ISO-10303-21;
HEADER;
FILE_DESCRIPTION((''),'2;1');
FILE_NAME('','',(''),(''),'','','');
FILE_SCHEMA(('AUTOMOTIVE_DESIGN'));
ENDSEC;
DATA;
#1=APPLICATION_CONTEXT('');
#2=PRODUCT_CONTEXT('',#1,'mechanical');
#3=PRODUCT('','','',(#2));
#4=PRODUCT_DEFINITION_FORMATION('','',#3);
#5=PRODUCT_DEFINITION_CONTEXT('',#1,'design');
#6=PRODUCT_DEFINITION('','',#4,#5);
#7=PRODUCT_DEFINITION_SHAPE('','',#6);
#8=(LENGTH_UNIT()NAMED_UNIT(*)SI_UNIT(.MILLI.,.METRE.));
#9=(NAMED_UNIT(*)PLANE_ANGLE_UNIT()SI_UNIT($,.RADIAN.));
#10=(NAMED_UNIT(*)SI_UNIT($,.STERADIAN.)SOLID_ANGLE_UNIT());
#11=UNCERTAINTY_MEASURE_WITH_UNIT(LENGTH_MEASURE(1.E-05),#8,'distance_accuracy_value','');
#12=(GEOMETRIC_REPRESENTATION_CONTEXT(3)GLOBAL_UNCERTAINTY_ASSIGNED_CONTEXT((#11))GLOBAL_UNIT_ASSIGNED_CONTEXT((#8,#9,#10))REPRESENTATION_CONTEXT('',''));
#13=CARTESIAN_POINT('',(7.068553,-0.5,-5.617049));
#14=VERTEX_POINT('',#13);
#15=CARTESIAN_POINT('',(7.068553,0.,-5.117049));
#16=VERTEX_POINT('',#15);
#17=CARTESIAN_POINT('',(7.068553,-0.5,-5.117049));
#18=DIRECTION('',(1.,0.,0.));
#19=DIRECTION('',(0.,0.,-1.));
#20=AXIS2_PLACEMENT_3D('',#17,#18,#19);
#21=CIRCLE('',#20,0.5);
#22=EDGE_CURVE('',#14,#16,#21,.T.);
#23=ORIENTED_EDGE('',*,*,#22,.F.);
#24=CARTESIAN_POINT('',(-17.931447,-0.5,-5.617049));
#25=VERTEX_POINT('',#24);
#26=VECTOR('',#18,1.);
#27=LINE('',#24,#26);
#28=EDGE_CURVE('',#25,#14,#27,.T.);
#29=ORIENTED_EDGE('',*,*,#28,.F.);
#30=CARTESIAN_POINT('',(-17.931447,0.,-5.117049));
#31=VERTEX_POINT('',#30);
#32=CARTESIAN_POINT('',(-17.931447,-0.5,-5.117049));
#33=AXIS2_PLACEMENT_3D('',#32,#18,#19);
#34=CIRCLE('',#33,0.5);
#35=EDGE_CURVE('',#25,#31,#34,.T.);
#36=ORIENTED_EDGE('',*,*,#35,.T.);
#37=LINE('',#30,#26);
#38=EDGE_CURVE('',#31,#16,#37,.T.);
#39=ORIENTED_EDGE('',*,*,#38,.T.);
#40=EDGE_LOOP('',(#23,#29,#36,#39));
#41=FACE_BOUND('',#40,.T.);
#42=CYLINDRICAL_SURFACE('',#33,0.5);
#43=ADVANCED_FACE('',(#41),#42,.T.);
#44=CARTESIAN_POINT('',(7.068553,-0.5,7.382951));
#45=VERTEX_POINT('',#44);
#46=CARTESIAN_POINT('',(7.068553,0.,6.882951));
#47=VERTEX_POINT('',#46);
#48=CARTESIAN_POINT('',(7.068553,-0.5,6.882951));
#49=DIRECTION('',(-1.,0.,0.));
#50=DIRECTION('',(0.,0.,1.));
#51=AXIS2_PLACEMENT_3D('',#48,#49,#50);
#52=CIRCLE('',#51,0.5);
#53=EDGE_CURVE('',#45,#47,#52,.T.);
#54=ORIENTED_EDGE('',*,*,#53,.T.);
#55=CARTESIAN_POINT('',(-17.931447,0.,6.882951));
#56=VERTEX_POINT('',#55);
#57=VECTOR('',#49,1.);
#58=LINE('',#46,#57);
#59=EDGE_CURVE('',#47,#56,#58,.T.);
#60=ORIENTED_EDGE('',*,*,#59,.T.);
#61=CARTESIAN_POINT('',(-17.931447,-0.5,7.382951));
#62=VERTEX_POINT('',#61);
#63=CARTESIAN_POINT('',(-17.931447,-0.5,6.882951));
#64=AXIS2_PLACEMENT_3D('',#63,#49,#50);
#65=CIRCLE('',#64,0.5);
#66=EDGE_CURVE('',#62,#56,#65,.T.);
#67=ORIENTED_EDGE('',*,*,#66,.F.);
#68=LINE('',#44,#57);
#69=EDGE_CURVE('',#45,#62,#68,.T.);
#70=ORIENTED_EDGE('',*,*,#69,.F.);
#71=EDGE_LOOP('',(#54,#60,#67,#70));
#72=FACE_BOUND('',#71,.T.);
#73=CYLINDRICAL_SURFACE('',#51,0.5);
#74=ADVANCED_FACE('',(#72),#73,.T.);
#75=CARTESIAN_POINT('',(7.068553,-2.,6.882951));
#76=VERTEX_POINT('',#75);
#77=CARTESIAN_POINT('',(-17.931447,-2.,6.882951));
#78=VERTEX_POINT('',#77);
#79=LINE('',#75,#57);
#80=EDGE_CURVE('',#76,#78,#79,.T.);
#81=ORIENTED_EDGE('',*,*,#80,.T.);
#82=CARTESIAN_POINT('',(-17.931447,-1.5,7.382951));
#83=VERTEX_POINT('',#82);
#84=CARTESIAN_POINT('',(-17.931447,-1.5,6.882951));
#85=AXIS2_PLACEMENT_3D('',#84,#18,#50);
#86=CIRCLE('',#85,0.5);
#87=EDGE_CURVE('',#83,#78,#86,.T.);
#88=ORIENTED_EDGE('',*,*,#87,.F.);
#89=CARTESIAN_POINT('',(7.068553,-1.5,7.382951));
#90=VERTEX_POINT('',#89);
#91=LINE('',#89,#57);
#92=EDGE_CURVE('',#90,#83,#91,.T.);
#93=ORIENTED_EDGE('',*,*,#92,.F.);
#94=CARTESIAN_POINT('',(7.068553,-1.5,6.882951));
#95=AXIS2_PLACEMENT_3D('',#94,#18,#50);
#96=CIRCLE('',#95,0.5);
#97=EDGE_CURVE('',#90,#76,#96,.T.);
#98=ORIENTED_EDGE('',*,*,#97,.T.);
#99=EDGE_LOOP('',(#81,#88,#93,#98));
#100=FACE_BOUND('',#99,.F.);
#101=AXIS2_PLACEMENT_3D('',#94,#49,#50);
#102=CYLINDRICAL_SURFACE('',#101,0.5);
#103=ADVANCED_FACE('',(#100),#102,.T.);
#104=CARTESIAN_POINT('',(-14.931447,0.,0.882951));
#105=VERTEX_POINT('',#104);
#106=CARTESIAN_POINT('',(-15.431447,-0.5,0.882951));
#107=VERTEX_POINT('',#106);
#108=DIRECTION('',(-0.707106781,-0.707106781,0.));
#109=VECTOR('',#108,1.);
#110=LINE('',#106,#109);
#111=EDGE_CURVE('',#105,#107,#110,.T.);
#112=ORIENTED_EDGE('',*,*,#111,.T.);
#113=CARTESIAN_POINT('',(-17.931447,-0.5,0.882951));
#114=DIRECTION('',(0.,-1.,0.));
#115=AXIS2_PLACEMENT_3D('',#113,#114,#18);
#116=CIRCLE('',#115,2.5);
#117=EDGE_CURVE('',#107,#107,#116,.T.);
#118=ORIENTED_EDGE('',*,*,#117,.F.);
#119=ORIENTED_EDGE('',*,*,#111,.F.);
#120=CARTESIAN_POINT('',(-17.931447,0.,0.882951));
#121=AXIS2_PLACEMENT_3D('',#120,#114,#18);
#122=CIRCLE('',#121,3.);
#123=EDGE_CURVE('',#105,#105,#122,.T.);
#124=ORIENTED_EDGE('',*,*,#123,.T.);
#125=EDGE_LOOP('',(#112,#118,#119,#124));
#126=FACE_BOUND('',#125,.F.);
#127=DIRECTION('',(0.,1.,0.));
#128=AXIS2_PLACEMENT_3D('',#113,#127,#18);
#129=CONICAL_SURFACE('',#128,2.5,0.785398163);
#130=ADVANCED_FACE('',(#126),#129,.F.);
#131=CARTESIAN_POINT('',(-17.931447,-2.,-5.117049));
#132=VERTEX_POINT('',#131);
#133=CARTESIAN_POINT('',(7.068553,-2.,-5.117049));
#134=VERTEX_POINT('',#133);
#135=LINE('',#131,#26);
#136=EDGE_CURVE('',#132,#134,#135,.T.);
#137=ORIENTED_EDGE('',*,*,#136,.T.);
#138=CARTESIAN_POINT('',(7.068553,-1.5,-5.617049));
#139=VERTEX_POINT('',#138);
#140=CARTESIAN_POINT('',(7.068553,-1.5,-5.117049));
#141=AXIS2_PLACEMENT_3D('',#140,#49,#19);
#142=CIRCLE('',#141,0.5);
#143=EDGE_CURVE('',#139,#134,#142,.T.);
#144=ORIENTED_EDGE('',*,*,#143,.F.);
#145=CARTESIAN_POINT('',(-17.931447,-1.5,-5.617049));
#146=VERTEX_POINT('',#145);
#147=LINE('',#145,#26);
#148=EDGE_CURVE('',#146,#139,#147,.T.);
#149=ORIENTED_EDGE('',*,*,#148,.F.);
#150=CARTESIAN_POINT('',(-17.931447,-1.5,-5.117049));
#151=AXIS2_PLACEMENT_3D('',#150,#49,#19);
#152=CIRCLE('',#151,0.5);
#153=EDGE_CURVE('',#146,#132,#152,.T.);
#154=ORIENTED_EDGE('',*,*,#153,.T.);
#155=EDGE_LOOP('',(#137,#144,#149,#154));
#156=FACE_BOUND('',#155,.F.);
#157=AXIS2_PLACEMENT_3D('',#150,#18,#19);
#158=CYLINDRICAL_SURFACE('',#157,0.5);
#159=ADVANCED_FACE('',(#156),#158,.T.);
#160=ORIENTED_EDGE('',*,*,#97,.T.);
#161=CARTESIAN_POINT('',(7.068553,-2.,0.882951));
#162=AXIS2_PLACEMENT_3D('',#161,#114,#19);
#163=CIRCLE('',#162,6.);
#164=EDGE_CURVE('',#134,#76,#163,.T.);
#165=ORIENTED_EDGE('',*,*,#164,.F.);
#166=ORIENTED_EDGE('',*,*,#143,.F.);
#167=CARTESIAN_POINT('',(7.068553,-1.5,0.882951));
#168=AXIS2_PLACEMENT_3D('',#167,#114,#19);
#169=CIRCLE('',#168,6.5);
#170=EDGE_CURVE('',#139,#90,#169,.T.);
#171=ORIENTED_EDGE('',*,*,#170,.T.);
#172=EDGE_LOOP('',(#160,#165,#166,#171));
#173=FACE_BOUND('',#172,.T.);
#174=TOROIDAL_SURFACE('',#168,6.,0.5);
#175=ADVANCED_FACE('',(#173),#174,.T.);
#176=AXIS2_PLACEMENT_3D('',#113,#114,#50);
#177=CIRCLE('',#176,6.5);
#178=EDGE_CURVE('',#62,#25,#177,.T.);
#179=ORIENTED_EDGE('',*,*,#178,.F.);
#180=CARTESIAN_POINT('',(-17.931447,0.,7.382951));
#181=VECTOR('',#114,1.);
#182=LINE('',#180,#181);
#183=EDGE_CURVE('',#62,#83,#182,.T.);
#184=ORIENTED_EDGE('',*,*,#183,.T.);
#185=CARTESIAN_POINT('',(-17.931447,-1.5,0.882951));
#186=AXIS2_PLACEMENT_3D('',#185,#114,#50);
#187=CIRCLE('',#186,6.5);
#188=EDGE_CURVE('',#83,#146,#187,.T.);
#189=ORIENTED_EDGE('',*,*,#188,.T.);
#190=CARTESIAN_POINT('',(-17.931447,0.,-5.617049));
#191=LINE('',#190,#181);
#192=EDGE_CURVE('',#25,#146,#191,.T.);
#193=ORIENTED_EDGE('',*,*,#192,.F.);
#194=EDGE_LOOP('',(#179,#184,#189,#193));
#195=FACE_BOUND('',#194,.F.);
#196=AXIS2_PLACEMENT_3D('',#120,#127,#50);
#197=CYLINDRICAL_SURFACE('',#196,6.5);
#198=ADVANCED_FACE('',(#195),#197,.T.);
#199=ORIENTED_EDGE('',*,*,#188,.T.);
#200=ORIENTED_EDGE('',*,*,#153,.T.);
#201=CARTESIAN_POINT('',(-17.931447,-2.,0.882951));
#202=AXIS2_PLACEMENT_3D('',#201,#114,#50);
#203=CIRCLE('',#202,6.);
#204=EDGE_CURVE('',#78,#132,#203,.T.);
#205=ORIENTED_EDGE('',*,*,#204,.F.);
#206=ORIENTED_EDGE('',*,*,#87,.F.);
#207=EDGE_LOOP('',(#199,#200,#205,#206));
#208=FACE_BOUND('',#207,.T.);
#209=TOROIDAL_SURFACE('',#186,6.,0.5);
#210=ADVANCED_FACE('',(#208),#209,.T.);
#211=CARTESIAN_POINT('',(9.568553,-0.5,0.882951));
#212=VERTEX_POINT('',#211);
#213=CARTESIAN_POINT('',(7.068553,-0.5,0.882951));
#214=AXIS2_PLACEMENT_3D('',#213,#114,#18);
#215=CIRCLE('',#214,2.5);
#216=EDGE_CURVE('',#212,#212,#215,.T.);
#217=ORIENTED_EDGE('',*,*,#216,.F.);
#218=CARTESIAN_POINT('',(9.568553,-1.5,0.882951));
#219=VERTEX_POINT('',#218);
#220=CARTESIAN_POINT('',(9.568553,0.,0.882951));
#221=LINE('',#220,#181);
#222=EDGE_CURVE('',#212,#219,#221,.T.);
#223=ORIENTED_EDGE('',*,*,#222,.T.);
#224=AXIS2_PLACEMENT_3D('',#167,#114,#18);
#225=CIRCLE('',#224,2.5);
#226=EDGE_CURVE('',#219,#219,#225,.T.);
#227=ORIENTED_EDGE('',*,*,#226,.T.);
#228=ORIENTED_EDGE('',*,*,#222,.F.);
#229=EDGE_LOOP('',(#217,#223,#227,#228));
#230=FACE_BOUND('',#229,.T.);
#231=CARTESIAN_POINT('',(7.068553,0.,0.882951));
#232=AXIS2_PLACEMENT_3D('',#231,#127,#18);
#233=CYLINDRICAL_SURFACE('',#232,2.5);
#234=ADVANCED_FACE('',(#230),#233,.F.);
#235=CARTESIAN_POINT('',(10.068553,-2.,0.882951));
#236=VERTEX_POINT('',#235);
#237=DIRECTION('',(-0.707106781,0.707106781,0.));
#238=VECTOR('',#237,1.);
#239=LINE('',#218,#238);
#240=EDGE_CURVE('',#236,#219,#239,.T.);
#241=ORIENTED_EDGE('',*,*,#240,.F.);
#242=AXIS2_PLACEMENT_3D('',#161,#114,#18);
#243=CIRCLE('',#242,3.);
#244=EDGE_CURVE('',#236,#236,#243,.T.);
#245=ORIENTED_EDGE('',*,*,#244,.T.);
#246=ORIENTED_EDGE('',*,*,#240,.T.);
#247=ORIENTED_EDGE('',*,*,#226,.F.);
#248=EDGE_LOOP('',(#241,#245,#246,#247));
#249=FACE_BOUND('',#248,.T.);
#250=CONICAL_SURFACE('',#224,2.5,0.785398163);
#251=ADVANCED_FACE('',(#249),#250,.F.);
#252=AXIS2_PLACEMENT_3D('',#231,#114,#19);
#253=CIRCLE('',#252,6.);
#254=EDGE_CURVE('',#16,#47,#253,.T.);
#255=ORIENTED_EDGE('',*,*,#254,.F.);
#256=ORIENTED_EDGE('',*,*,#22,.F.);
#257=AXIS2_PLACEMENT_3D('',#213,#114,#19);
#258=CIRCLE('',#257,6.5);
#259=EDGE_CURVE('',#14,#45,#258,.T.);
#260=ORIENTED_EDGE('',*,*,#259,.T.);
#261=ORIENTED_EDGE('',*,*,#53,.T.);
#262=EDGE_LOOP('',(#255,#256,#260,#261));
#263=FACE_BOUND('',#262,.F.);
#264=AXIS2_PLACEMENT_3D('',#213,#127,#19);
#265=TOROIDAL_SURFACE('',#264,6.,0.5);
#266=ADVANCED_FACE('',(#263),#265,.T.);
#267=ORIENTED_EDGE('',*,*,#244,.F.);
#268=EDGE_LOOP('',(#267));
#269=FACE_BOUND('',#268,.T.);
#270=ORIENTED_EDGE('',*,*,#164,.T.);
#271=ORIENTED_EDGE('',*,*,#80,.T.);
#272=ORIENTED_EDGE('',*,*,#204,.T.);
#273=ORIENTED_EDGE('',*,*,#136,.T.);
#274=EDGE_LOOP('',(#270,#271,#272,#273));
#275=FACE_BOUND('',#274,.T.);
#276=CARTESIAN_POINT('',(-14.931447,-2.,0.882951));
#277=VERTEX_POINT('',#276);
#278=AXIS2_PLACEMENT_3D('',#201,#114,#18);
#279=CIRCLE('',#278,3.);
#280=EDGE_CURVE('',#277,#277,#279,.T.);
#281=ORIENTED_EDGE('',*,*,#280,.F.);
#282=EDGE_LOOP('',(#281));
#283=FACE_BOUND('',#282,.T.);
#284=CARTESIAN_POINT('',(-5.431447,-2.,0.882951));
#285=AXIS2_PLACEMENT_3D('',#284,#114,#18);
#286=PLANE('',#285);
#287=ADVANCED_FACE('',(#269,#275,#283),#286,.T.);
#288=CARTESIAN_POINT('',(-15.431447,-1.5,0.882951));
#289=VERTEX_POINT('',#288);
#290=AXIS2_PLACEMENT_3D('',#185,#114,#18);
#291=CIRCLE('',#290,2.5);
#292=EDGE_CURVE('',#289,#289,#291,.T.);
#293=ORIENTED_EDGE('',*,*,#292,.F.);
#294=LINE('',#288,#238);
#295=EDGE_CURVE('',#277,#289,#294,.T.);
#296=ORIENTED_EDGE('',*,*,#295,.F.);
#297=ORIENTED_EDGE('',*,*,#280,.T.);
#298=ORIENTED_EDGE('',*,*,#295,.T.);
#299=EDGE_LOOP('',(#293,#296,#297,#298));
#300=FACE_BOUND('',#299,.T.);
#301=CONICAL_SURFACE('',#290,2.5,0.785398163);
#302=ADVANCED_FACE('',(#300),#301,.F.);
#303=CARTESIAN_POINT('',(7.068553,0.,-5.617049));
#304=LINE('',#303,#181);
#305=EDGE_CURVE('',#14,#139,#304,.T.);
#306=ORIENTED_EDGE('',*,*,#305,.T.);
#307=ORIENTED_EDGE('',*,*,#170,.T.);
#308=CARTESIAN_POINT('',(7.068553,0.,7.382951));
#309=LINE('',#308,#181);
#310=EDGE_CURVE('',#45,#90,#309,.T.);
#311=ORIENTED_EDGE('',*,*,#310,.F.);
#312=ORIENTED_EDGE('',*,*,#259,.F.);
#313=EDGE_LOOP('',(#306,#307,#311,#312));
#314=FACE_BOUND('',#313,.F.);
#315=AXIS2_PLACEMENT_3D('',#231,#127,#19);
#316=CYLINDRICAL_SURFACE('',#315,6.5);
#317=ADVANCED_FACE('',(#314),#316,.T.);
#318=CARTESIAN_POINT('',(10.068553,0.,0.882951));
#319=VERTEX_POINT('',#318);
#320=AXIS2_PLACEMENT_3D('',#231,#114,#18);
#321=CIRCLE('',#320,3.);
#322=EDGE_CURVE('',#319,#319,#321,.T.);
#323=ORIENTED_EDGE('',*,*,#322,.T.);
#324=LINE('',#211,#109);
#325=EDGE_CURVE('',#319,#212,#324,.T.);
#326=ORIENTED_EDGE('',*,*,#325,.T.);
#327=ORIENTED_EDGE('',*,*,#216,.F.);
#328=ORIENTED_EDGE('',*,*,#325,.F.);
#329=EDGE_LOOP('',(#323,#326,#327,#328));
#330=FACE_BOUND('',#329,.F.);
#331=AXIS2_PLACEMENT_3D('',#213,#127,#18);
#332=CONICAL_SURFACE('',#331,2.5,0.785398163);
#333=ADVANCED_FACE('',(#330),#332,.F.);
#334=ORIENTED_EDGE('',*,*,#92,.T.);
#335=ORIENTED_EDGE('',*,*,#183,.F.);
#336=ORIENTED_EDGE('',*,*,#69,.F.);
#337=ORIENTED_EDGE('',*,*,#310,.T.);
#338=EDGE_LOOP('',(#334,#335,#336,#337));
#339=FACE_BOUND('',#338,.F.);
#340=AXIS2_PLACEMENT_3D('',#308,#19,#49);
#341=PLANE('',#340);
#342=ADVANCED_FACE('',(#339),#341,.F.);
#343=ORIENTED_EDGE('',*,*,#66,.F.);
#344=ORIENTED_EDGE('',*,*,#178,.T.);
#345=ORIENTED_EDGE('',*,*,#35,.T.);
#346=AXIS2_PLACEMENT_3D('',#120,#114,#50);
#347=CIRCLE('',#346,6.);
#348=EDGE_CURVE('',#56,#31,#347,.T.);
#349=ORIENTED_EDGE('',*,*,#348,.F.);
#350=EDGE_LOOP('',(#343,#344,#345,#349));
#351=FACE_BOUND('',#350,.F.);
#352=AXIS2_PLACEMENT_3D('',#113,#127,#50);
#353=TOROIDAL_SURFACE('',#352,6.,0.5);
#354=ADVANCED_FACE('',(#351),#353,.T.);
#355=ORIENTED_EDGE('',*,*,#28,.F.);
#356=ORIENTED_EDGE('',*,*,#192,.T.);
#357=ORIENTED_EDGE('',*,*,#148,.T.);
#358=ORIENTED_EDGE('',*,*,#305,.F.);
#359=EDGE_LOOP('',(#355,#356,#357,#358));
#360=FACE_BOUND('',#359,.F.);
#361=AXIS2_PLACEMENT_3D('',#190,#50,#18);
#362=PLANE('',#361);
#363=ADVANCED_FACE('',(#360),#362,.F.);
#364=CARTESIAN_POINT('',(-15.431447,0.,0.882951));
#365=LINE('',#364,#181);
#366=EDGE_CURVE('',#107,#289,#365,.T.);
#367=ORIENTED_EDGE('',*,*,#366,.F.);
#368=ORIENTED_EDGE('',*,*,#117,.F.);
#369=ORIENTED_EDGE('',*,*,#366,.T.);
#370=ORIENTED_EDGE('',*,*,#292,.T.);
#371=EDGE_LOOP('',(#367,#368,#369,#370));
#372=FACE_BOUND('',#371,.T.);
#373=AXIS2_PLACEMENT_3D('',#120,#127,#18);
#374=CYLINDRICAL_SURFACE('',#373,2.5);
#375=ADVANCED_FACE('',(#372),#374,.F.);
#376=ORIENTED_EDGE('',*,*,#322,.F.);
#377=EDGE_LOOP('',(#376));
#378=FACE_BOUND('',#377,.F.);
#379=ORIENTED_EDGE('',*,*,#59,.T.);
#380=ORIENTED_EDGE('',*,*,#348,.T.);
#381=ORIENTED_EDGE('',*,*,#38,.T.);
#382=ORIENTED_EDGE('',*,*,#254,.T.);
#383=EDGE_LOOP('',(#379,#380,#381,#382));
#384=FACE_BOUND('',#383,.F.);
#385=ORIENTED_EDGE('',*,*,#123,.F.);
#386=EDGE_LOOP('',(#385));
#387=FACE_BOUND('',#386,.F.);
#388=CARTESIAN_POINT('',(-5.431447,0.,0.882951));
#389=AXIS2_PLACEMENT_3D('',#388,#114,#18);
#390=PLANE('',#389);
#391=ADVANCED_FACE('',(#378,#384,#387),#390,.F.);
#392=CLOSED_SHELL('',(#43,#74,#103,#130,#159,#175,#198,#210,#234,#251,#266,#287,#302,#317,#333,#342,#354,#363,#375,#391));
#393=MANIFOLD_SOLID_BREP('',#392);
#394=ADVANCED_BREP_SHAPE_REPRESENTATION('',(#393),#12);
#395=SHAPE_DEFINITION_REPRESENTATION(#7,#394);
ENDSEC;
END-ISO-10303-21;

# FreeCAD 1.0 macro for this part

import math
import FreeCAD as App
import Part
import Sketcher

V = App.Vector
Q = App.Units.Quantity


def edges_at(feature, points):
    """Names of the edges that pass closest to the given points."""
    edges = feature.Shape.Edges
    near = lambda p: min(range(len(edges)), key=lambda i: edges[i].distToShape(Part.Vertex(*p))[0])
    return sorted({f"Edge{near(p) + 1}" for p in points})

doc = App.newDocument("Part")
body = doc.addObject("PartDesign::Body", "Body")

sketch1 = body.newObject("Sketcher::SketchObject", "Sketch")
sketch1.AttachmentSupport = (doc.getObject("XZ_Plane"), [""])
sketch1.MapMode = "FlatFace"
sketch1.addGeometry([
    Part.LineSegment(V(7.068553, 7.382951, 0), V(-17.931447, 7.382951, 0)),
    Part.ArcOfCircle(Part.Circle(V(-17.931447, 0.882951, 0), V(0, 0, 1), 6.5), math.radians(90), math.radians(270)),
    Part.LineSegment(V(-17.931447, -5.617049, 0), V(7.068553, -5.617049, 0)),
    Part.ArcOfCircle(Part.Circle(V(7.068553, 0.882951, 0), V(0, 0, 1), 6.5), math.radians(-90), math.radians(90)),
    Part.Circle(V(-17.931447, 0.882951, 0), V(0, 0, 1), 2.5),
    Part.Circle(V(7.068553, 0.882951, 0), V(0, 0, 1), 2.5),
], False)
sketch1.addConstraint([
    Sketcher.Constraint("Tangent", 0, 2, 1, 1),
    Sketcher.Constraint("Tangent", 1, 2, 2, 1),
    Sketcher.Constraint("Tangent", 2, 2, 3, 1),
    Sketcher.Constraint("Tangent", 3, 2, 0, 1),
    Sketcher.Constraint("Horizontal", 0),
    Sketcher.Constraint("Horizontal", 2),
    Sketcher.Constraint("Coincident", 4, 3, 1, 3),
    Sketcher.Constraint("Coincident", 5, 3, 3, 3),
    Sketcher.Constraint("Equal", 4, 5),
    Sketcher.Constraint("Diameter", 4, Q("5 mm")),
    Sketcher.Constraint("Radius", 1, Q("6.5 mm")),
    Sketcher.Constraint("DistanceX", 0, 2, 0, 1, Q("25 mm")),
    Sketcher.Constraint("DistanceY", -1, 1, 1, 3, Q("0.882951 mm")),
    Sketcher.Constraint("DistanceX", 1, 3, -1, 1, Q("17.931447 mm")),
])
pad1 = body.newObject("PartDesign::Pad", "Pad")
pad1.Profile = sketch1
pad1.Length = 2
doc.recompute()

fillet = body.newObject("PartDesign::Fillet", "Fillet")
fillet.Base = (pad1, edges_at(pad1, [(-5.431, -2, 7.383), (-24.431, 0, 0.883)]))
fillet.Radius = 0.5
doc.recompute()

chamfer = body.newObject("PartDesign::Chamfer", "Chamfer")
chamfer.Base = (fillet, edges_at(fillet, [
    (-20.431, 0, 0.883),
    (4.569, 0, 0.883),
    (-20.431, -2, 0.883),
    (4.569, -2, 0.883),
]))
chamfer.Size = 0.5

doc.recompute()
